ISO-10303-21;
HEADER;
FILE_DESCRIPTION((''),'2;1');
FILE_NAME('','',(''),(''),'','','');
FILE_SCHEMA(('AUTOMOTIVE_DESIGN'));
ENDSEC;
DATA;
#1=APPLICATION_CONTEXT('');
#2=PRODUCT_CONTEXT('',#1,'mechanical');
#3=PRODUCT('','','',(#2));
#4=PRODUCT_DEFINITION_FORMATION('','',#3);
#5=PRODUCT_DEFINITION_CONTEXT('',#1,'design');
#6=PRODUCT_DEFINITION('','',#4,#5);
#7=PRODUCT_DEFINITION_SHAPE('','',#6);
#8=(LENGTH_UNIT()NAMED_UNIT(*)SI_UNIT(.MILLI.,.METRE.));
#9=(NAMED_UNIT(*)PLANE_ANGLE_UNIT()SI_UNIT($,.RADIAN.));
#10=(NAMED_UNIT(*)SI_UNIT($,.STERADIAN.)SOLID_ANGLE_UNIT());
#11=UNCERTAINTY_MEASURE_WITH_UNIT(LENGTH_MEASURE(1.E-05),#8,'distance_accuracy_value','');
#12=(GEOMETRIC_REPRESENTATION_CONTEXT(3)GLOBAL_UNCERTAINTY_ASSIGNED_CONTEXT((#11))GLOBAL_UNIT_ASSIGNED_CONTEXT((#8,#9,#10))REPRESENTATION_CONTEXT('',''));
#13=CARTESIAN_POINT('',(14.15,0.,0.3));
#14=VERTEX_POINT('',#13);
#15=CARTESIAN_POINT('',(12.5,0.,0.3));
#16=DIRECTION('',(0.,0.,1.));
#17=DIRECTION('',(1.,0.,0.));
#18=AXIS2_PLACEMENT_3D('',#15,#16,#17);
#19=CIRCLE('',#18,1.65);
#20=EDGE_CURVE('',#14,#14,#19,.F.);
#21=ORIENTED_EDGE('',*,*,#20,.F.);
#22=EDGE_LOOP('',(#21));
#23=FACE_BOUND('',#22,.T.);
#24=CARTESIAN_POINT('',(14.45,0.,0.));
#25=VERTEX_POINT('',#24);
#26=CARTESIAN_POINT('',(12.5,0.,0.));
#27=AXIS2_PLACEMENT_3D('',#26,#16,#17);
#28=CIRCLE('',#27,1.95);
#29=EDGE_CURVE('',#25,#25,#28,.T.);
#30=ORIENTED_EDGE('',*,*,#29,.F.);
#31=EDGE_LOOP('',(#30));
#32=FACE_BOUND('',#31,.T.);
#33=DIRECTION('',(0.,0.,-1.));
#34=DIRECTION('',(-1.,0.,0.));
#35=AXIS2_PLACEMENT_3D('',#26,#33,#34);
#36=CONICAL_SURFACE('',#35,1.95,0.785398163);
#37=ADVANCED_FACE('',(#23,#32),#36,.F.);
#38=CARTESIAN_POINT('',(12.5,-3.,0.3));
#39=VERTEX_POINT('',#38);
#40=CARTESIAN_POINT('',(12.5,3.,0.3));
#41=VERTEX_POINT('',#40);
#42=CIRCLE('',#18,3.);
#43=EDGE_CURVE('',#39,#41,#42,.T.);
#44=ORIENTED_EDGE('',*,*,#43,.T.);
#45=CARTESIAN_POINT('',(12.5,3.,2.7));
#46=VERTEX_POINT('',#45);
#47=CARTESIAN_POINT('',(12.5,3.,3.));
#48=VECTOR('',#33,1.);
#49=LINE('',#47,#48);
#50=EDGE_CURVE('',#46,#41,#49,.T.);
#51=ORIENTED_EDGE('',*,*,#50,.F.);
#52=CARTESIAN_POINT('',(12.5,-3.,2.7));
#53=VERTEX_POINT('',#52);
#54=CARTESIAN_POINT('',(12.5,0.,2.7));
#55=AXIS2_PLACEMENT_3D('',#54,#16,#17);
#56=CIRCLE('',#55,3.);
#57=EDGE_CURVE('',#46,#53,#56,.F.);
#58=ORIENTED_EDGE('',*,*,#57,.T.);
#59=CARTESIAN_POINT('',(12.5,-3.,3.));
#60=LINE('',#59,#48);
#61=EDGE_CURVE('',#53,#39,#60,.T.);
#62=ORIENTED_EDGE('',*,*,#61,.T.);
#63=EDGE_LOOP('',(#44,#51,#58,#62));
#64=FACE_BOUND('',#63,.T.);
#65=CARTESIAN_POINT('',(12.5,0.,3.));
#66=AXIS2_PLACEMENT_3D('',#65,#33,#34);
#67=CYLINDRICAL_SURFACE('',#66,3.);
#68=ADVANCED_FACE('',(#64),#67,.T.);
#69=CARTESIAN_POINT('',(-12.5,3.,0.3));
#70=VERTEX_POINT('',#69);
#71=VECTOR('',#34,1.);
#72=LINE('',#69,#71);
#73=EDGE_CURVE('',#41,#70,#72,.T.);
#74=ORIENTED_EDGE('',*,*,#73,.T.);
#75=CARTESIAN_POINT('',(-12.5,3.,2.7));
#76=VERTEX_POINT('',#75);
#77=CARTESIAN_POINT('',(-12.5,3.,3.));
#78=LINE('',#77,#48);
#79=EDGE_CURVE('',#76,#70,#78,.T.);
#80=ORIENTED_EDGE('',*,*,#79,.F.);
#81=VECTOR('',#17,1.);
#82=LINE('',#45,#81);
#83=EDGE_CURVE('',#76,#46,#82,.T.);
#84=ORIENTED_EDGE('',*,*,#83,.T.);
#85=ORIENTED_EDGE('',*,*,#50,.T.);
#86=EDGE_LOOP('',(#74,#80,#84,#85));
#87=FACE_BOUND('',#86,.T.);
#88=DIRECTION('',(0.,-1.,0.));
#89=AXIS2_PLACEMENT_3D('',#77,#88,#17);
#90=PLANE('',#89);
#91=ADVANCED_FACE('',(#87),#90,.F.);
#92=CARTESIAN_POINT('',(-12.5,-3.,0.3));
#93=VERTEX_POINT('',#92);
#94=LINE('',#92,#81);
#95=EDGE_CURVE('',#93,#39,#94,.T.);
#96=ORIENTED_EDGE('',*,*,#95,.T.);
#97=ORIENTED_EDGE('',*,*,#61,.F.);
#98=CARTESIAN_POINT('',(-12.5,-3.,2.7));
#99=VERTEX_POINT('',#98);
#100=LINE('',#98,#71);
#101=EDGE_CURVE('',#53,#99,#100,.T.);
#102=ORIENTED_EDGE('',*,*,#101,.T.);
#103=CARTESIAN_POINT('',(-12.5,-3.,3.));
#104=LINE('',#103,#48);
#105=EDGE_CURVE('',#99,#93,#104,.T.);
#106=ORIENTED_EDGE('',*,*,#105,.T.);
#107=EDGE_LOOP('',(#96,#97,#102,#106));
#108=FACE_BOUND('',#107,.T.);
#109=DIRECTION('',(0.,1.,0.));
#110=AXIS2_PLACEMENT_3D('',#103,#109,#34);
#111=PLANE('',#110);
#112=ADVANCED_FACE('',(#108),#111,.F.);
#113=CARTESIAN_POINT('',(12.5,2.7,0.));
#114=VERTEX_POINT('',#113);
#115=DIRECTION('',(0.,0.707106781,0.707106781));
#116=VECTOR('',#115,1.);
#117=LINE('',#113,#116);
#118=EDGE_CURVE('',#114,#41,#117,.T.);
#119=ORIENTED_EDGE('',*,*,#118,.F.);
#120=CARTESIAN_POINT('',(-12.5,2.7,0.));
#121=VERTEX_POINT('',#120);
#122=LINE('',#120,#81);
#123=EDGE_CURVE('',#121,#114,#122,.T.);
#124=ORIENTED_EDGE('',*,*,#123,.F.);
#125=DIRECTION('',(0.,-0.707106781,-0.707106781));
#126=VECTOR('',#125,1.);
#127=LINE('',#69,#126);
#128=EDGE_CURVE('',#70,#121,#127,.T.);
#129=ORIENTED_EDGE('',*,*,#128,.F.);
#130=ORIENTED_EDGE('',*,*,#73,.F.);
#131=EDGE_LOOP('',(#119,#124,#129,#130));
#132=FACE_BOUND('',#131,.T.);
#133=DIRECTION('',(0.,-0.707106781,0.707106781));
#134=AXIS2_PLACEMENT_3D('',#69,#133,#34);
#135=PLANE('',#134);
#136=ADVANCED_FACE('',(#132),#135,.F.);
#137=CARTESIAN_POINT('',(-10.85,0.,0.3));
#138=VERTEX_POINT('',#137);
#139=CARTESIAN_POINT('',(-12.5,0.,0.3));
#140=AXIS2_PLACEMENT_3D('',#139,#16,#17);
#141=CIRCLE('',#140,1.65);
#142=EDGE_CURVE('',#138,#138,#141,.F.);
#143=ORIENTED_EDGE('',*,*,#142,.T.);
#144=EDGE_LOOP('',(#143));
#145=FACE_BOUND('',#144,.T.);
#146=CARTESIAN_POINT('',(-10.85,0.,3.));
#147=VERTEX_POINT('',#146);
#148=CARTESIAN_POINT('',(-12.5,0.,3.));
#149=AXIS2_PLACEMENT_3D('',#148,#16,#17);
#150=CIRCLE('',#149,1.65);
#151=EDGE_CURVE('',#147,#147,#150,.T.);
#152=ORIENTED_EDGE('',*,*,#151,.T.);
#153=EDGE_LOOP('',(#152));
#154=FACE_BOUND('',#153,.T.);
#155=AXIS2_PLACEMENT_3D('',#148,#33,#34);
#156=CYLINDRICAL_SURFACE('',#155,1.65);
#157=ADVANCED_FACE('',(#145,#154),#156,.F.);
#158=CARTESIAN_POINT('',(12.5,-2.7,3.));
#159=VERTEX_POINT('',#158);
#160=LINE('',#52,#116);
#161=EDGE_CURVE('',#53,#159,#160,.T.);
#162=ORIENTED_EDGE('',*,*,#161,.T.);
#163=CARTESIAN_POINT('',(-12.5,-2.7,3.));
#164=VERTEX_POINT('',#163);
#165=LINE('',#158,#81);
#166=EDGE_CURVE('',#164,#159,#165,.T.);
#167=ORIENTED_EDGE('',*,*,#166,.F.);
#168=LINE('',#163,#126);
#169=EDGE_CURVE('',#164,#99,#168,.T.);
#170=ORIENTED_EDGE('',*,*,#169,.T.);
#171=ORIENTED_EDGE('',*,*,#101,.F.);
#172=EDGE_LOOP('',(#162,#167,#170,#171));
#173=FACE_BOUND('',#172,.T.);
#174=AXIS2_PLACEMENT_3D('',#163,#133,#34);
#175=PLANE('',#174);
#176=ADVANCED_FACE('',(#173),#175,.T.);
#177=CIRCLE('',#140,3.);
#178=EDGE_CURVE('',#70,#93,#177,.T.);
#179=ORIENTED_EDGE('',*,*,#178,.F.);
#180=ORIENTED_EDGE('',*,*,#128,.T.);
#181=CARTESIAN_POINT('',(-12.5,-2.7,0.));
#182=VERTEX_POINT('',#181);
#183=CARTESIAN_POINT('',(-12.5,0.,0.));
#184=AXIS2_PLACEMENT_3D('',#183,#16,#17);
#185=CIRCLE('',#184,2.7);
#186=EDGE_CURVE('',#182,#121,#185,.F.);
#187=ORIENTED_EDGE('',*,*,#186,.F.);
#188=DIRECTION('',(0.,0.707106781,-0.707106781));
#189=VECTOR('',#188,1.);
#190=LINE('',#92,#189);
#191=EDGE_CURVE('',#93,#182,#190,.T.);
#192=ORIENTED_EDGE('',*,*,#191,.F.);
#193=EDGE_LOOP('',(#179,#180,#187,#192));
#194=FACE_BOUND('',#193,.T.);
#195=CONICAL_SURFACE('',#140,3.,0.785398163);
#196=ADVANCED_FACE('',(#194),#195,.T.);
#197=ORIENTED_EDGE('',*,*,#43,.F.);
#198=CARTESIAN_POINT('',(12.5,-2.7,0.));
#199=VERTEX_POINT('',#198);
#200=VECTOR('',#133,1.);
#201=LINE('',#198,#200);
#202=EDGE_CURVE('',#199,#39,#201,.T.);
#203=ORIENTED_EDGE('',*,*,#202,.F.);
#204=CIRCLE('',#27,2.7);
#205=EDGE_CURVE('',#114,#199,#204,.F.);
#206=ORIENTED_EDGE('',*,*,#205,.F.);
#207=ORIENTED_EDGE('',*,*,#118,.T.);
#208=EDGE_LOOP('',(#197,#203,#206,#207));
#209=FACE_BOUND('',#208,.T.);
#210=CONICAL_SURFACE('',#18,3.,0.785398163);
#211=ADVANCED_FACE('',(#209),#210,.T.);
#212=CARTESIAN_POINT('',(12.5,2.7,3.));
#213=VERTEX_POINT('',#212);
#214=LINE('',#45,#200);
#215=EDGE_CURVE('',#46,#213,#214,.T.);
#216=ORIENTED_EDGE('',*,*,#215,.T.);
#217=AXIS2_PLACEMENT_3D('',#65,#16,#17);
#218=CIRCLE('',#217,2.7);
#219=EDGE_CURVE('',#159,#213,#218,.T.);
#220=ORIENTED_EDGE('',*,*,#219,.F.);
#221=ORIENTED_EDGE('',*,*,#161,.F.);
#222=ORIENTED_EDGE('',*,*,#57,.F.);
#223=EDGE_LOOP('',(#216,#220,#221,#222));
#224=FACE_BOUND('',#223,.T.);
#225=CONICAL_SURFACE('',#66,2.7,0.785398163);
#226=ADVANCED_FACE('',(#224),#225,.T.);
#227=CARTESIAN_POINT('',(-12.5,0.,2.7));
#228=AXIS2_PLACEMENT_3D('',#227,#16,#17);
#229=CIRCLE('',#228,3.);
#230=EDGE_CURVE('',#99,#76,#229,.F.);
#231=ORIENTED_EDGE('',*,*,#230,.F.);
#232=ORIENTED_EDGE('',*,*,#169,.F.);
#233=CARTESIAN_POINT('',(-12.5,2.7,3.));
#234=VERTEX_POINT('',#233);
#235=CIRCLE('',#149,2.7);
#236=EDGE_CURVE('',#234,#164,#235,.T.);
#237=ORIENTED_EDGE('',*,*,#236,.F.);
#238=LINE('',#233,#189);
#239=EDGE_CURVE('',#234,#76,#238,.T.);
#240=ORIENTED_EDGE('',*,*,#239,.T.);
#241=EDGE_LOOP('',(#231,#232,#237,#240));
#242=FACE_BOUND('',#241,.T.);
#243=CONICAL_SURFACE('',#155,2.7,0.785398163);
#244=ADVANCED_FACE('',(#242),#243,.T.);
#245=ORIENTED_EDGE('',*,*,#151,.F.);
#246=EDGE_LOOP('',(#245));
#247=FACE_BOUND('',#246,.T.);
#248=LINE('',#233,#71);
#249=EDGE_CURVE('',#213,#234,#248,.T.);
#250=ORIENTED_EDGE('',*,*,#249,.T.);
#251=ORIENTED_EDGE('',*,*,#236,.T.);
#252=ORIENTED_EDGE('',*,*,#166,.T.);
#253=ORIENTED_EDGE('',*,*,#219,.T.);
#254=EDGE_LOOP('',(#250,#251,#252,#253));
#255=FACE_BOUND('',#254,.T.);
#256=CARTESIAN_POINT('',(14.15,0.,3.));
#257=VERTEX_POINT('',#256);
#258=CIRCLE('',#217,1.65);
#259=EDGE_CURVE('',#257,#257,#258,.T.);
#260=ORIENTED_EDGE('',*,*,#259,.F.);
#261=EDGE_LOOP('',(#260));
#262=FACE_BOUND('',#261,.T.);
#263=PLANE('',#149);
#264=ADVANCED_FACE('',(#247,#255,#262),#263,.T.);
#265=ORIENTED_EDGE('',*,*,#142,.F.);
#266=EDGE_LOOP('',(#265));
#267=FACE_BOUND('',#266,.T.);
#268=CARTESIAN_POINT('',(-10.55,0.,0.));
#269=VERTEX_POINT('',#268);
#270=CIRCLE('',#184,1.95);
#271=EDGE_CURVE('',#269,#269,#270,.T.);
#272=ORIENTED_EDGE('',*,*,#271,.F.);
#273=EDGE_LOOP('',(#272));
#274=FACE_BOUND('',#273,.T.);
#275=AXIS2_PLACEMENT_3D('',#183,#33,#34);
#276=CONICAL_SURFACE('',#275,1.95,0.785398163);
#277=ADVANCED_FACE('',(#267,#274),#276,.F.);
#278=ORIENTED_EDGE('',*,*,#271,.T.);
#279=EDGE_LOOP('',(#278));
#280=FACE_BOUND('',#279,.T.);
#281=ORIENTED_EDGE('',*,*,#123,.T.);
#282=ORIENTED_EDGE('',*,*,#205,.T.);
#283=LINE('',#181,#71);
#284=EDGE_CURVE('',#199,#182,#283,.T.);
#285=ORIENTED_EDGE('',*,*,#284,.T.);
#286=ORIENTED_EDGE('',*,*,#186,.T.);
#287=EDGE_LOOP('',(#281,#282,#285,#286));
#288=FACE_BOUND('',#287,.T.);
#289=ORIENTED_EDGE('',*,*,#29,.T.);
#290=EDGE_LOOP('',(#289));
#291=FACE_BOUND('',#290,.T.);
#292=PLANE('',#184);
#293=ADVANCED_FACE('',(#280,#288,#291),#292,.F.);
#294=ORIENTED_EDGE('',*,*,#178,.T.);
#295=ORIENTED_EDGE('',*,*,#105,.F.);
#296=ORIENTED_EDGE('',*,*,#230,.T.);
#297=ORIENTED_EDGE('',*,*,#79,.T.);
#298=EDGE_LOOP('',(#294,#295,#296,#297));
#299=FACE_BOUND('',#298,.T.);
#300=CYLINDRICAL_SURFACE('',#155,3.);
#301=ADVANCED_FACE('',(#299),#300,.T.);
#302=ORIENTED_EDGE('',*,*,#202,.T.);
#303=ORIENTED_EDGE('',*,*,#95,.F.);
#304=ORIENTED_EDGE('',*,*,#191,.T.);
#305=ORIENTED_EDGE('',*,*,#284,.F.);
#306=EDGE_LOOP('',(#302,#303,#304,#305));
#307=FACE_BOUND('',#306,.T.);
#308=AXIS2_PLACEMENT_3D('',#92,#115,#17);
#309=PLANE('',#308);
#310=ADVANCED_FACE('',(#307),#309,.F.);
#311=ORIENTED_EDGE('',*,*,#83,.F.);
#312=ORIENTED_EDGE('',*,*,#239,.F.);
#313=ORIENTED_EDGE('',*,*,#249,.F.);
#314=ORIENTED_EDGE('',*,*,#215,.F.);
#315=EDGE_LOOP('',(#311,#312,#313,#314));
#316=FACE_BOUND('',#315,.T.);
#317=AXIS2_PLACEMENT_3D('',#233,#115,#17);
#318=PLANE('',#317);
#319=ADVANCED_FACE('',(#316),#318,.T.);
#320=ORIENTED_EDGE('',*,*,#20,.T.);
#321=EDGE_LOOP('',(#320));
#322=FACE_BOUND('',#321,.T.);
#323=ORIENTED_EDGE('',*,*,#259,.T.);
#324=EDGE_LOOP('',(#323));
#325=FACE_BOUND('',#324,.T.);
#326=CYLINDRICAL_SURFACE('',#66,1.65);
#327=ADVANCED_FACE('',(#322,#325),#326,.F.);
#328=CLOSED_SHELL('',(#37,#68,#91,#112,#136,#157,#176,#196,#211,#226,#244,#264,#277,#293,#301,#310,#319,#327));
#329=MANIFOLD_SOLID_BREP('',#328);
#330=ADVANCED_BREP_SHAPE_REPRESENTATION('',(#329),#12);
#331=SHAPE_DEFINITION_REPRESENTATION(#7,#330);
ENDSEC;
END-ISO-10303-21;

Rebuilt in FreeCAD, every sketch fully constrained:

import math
import FreeCAD as App
import Part
import Sketcher
from FreeCAD import Vector
Q = App.Units.Quantity


def edges_at(feature, points):
    """Names of the edges that pass closest to the given points."""
    edges = feature.Shape.Edges
    near = lambda p: min(range(len(edges)), key=lambda i: edges[i].distToShape(Part.Vertex(*p))[0])
    return sorted({f"Edge{near(p) + 1}" for p in points})

doc = App.newDocument("Part")
params = doc.addObject("Spreadsheet::Sheet", "Params")
for row, (alias, value) in enumerate([
    ("sketch1_radius", "3 mm"),
    ("sketch1_diameter", "3.3 mm"),
    ("sketch1_width", "25 mm"),
    ("pad1_length", "3 mm"),
    ("chamfer_size", "0.3 mm"),
], start=1):
    params.set(f"A{row}", alias)
    params.set(f"B{row}", "=" + value)
    params.setAlias(f"B{row}", alias)

body = doc.addObject("PartDesign::Body", "Body")

# Sketch on XY plane
sketch1 = body.newObject("Sketcher::SketchObject", "Sketch")
sketch1.AttachmentSupport = (doc.getObject("XY_Plane"), [""])
sketch1.MapMode = "FlatFace"
sketch1.addGeometry(Part.LineSegment(Vector(12.5, 3, 0), Vector(-12.5, 3, 0)), False)
sketch1.addGeometry(Part.ArcOfCircle(Part.Circle(Vector(-12.5, 0, 0), Vector(0, 0, 1), 3), math.radians(90), math.radians(270)), False)
sketch1.addGeometry(Part.LineSegment(Vector(-12.5, -3, 0), Vector(12.5, -3, 0)), False)
sketch1.addGeometry(Part.ArcOfCircle(Part.Circle(Vector(12.5, 0, 0), Vector(0, 0, 1), 3), math.radians(-90), math.radians(90)), False)
sketch1.addGeometry(Part.Circle(Vector(12.5, 0, 0), Vector(0, 0, 1), 1.6), False)
sketch1.addGeometry(Part.Circle(Vector(-12.5, 0, 0), Vector(0, 0, 1), 1.6), False)
sketch1.addConstraint(Sketcher.Constraint("Tangent", 0, 2, 1, 1))
sketch1.addConstraint(Sketcher.Constraint("Tangent", 1, 2, 2, 1))
sketch1.addConstraint(Sketcher.Constraint("Tangent", 2, 2, 3, 1))
sketch1.addConstraint(Sketcher.Constraint("Tangent", 3, 2, 0, 1))
sketch1.addConstraint(Sketcher.Constraint("Horizontal", 0))
sketch1.addConstraint(Sketcher.Constraint("Horizontal", 2))
sketch1.addConstraint(Sketcher.Constraint("Coincident", 4, 3, 3, 3))
sketch1.addConstraint(Sketcher.Constraint("Coincident", 5, 3, 1, 3))
sketch1.addConstraint(Sketcher.Constraint("Equal", 4, 5))
sketch1.addConstraint(Sketcher.Constraint("Symmetric", 1, 3, 3, 3, -1, 1))
sketch1.addConstraint(Sketcher.Constraint("Radius", 1, Q("3 mm")))
sketch1.addConstraint(Sketcher.Constraint("Diameter", 4, Q("3.3 mm")))
sketch1.addConstraint(Sketcher.Constraint("DistanceX", 0, 2, 0, 1, Q("25 mm")))
sketch1.setExpression("Constraints[10]", "Params.sketch1_radius")
sketch1.setExpression("Constraints[11]", "Params.sketch1_diameter")
sketch1.setExpression("Constraints[12]", "Params.sketch1_width")
pad1 = body.newObject("PartDesign::Pad", "Pad")
pad1.Profile = sketch1
pad1.setExpression("Length", "Params.pad1_length")
doc.recompute()

chamfer = body.newObject("PartDesign::Chamfer", "Chamfer")
chamfer.Base = (pad1, edges_at(pad1, [
    (-14.15, 0, 0),
    (15.5, 0, 3),
    (10.85, 0, 0),
    (0, 3, 3),
    (-15.5, 0, 3),
    (0, 3, 0),
    (15.5, 0, 0),
    (0, -3, 0),
    (-15.5, 0, 0),
    (0, -3, 3),
]))
chamfer.setExpression("Size", "Params.chamfer_size")

doc.recompute()
